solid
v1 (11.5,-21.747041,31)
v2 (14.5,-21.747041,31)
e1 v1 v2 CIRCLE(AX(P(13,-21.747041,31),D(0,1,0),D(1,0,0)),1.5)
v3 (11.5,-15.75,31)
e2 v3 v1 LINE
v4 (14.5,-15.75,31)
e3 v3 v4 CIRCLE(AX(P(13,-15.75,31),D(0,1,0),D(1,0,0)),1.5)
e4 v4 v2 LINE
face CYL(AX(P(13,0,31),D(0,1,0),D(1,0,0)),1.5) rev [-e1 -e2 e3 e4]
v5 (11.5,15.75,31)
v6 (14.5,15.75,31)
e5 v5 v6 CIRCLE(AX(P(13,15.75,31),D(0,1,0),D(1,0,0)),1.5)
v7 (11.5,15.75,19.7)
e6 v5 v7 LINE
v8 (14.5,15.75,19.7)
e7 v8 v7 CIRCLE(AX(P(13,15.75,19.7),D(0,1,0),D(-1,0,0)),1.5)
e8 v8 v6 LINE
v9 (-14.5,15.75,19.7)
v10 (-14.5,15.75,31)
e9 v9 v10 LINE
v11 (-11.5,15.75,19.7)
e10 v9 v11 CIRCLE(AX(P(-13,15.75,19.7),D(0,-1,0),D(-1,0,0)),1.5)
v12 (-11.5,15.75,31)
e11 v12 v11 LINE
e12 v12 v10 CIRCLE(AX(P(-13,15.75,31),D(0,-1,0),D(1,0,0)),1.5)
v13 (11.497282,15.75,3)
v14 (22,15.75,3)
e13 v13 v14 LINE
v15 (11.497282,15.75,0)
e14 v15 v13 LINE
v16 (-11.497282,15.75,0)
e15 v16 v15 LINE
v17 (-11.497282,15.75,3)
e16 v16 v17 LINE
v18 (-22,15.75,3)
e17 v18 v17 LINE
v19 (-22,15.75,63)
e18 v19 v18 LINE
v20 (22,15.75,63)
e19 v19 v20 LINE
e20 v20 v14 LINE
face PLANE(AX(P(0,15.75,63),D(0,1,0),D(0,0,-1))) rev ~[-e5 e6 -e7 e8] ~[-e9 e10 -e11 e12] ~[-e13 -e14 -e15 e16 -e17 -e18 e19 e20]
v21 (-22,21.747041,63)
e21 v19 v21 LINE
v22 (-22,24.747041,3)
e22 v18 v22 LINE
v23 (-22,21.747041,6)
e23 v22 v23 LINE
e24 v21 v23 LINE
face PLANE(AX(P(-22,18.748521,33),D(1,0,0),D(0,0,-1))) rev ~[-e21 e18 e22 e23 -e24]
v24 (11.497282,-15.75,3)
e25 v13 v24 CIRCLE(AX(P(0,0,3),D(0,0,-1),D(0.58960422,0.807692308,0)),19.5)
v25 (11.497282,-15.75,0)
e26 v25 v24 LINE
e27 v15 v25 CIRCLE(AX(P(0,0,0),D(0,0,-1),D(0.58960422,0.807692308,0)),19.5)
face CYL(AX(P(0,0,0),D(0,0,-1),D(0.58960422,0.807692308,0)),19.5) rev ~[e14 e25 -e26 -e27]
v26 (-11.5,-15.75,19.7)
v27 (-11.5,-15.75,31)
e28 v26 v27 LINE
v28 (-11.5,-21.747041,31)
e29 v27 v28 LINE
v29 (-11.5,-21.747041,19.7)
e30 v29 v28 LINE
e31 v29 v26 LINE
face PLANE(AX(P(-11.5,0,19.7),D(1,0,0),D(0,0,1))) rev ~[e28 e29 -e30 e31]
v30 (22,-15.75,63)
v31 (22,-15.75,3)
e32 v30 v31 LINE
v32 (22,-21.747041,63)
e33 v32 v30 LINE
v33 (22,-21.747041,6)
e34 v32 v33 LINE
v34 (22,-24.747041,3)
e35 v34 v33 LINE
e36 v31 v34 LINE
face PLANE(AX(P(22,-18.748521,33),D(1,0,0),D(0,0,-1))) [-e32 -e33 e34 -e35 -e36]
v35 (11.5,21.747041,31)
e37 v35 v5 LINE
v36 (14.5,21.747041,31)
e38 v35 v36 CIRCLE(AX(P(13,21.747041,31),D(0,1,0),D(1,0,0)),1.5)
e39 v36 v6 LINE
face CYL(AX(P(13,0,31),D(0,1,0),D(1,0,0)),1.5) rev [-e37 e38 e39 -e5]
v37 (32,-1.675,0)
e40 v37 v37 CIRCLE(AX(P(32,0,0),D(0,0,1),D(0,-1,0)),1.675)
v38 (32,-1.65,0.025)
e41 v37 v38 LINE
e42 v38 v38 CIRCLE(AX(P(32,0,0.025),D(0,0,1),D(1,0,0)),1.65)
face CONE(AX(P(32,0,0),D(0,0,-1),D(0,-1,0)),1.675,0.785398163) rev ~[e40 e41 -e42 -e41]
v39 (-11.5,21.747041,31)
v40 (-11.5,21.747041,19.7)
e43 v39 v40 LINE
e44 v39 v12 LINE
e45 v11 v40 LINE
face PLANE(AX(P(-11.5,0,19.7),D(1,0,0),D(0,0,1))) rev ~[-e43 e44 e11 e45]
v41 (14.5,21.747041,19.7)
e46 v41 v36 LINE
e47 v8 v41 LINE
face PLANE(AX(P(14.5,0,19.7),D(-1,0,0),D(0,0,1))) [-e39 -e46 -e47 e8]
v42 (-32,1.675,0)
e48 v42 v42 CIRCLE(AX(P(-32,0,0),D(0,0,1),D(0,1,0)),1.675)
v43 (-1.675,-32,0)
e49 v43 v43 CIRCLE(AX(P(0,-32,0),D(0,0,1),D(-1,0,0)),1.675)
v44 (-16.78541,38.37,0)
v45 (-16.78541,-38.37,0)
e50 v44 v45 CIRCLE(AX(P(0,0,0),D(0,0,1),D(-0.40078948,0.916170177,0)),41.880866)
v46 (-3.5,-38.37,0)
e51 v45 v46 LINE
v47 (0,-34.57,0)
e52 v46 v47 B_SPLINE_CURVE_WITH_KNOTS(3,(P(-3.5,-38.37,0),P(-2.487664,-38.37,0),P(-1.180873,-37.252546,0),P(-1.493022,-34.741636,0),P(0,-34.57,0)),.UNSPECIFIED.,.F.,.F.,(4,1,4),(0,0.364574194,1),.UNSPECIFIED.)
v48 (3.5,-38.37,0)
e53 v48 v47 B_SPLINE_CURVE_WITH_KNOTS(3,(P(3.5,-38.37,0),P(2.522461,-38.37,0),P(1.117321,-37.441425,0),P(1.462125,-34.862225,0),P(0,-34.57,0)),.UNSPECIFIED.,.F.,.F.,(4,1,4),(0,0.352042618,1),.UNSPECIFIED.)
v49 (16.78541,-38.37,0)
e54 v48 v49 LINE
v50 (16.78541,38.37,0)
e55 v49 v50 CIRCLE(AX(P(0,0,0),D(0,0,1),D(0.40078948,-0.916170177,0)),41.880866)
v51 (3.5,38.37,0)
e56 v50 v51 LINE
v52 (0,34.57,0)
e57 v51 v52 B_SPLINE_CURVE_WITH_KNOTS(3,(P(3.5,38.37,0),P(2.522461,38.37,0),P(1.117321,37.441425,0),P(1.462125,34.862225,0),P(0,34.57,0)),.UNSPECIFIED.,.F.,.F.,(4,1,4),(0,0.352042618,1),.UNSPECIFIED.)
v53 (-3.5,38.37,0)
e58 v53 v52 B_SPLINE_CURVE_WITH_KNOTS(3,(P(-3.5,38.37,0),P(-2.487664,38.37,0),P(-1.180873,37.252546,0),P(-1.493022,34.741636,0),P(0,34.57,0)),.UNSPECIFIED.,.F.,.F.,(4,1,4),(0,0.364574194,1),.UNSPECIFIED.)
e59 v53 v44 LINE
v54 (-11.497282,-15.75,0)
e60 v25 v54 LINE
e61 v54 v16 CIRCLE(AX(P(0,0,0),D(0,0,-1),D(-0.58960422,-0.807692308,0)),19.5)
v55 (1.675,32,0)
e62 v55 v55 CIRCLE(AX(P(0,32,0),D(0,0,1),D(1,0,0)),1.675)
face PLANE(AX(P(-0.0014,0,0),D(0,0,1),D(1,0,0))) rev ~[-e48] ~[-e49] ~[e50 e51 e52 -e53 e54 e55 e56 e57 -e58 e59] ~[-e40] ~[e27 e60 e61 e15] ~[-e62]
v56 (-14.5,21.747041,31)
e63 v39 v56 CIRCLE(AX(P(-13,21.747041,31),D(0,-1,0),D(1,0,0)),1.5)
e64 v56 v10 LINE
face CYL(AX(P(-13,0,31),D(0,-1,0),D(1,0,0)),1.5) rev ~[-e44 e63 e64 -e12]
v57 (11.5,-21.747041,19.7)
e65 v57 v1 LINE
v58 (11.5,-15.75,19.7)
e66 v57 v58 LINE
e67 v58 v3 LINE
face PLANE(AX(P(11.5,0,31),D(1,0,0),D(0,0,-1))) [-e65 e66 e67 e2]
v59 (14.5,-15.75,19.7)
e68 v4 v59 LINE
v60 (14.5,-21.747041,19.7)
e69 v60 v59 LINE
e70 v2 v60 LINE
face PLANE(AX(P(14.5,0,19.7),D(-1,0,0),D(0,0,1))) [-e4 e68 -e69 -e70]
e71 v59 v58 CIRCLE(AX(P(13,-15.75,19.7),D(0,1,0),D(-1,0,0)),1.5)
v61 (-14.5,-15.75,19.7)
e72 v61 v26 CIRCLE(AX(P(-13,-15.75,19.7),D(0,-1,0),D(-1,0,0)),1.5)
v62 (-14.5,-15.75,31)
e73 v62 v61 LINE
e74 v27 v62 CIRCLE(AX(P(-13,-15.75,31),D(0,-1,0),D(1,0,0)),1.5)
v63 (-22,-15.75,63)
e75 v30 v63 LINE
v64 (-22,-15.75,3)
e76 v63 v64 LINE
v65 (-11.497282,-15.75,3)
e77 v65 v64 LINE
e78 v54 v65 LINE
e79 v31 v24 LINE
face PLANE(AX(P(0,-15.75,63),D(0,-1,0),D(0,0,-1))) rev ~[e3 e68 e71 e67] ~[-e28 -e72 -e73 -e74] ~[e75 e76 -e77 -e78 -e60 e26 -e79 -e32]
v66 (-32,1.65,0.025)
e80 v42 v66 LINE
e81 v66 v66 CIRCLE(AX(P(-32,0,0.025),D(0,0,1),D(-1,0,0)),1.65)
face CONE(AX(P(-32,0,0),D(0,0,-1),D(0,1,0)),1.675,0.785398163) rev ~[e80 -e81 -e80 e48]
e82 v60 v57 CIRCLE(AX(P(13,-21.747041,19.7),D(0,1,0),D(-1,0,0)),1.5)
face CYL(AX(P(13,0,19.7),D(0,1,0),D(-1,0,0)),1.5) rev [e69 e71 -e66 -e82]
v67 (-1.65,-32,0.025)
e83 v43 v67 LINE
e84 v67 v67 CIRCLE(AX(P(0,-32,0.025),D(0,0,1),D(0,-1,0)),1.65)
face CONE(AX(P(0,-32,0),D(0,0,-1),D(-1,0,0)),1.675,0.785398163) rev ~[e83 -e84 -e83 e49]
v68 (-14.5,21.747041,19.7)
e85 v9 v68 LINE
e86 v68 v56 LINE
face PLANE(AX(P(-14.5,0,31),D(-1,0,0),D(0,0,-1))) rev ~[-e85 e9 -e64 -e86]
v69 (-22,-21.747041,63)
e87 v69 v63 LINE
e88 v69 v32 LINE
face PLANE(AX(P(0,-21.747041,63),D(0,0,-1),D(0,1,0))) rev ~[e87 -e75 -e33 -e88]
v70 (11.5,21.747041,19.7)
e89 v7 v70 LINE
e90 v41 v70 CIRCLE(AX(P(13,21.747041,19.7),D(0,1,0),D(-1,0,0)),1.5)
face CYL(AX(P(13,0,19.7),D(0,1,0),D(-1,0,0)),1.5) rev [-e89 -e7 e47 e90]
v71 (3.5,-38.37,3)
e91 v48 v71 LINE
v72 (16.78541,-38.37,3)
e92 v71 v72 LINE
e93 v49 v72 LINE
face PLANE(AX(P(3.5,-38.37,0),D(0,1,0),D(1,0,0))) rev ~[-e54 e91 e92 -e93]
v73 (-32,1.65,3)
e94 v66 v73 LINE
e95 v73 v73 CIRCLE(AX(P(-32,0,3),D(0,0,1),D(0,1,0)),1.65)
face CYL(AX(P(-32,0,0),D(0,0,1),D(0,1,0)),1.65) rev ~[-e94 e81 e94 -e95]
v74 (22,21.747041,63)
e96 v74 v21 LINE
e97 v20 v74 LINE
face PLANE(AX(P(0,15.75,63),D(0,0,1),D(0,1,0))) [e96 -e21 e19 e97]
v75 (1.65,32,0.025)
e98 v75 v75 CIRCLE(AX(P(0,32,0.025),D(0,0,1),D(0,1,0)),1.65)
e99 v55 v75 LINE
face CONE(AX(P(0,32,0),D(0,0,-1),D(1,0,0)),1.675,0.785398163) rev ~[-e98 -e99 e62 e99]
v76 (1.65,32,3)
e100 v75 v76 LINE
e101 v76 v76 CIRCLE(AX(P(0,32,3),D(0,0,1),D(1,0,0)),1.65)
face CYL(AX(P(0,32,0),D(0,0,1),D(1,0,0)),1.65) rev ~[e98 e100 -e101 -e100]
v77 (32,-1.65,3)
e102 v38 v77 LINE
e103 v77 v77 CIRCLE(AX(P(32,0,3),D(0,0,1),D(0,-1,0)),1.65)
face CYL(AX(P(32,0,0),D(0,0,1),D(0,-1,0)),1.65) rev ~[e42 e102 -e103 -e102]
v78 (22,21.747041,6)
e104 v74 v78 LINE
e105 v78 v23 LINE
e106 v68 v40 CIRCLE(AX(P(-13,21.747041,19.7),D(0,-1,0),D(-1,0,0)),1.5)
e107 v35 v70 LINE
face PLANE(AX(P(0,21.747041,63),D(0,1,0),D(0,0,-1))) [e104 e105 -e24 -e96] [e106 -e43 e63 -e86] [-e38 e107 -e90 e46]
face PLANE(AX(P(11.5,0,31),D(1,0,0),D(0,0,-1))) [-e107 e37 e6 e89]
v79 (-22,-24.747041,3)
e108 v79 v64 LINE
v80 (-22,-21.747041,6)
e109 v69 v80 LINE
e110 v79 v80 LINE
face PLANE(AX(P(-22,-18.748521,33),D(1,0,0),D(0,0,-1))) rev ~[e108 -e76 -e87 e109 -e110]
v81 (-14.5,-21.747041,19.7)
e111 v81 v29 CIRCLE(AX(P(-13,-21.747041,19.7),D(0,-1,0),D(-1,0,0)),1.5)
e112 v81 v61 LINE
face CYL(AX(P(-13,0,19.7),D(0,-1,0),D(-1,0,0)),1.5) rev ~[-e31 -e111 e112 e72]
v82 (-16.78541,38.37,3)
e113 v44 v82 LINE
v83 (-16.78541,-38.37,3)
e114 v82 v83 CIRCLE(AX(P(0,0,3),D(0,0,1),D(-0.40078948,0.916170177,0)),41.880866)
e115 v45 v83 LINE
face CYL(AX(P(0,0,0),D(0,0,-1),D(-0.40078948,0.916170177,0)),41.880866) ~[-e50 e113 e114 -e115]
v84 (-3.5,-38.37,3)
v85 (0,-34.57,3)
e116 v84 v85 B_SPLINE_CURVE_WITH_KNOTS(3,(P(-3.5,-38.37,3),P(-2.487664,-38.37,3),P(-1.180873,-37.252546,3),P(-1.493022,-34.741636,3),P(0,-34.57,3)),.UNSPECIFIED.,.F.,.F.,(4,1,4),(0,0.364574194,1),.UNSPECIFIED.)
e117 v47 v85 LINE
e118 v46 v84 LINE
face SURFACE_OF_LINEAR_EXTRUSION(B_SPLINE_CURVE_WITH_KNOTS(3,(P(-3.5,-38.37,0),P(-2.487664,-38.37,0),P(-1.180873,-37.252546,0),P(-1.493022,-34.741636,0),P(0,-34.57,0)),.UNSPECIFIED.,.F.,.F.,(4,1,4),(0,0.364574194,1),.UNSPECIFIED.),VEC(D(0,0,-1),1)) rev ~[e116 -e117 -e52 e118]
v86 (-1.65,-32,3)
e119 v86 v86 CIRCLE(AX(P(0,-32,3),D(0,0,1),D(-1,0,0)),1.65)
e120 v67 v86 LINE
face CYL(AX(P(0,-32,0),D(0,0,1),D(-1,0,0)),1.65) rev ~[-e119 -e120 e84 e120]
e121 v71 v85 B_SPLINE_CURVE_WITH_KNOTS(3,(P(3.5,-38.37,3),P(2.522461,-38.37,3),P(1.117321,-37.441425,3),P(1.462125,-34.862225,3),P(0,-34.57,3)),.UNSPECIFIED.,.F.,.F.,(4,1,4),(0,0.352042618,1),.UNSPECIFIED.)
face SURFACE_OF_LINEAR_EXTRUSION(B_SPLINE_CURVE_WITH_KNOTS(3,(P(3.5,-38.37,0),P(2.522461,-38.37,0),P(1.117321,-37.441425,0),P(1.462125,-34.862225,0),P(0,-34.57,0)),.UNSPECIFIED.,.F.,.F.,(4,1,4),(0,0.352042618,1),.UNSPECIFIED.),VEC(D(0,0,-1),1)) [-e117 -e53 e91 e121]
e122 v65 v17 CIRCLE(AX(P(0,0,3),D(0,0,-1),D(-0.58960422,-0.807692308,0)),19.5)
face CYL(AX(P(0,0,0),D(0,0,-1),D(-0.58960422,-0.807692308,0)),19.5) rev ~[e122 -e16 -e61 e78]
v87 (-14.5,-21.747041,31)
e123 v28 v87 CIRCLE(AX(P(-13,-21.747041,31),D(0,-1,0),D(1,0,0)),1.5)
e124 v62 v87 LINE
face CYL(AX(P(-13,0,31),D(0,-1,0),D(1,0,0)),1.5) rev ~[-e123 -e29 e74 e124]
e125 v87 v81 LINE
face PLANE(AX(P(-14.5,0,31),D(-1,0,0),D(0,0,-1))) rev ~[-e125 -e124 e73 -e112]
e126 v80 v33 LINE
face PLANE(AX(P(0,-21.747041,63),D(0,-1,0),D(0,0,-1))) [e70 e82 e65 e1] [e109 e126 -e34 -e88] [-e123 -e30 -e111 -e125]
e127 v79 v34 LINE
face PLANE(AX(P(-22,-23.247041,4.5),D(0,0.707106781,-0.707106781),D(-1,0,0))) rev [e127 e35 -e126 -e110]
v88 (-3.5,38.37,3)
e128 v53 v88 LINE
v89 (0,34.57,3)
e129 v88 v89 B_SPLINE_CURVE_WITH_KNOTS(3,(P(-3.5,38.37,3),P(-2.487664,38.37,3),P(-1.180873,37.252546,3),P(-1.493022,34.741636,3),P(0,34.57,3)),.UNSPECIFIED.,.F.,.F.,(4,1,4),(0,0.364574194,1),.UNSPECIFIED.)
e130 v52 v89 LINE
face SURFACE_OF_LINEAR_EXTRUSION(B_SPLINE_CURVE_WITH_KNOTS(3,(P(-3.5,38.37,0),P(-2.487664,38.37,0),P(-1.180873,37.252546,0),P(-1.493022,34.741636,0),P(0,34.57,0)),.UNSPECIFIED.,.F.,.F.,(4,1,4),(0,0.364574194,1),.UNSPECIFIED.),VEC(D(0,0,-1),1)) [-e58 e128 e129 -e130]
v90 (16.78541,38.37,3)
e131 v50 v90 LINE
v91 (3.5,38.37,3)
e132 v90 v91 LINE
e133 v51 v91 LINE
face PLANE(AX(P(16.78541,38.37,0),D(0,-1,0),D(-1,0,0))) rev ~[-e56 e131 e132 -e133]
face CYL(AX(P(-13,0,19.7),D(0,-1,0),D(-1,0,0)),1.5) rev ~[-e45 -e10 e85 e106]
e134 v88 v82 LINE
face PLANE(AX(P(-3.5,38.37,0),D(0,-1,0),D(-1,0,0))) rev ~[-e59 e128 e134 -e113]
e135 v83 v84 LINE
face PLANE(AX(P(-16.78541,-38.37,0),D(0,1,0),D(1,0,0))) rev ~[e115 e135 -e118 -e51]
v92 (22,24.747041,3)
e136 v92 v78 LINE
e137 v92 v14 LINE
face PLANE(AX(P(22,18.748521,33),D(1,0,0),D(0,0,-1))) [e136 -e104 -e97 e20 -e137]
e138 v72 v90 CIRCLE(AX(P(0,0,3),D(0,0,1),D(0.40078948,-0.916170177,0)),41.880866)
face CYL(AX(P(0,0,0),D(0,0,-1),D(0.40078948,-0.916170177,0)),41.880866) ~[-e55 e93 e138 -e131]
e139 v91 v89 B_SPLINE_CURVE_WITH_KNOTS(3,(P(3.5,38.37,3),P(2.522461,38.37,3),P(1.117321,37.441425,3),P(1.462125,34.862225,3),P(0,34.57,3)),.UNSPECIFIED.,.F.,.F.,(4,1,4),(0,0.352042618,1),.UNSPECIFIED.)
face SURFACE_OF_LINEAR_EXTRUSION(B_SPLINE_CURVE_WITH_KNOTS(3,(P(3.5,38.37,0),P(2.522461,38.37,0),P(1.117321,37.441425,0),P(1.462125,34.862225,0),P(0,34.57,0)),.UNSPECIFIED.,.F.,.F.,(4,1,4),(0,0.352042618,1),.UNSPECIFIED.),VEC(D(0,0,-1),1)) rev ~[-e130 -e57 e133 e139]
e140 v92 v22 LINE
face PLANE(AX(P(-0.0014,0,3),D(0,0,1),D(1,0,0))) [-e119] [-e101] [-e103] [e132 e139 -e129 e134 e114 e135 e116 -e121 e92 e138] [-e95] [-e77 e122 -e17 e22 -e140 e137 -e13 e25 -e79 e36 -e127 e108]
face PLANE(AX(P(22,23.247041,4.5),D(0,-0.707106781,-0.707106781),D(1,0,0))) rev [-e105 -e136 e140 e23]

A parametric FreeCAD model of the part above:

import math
import FreeCAD as App
import Part
import Sketcher


def edges_at(feature, points):
    """Names of the edges that pass closest to the given points."""
    edges = feature.Shape.Edges
    near = lambda p: min(range(len(edges)), key=lambda i: edges[i].distToShape(Part.Vertex(*p))[0])
    return sorted({f"Edge{near(p) + 1}" for p in points})


def add_polygon(sketch, points):
    """Adds a closed chain of lines whose ends are joined by coincident constraints."""
    first, n = sketch.GeometryCount, len(points)
    for a, b in zip(points, points[1:] + points[:1]):
        sketch.addGeometry(Part.LineSegment(App.Vector(*a, 0), App.Vector(*b, 0)), False)
    for i in range(n):
        sketch.addConstraint(Sketcher.Constraint("Coincident", first + i, 2, first + (i + 1) % n, 1))

doc = App.newDocument("Part")
body = doc.addObject("PartDesign::Body", "Body")

sketch1 = doc.addObject("Sketcher::SketchObject", "Sketch")
body.addObject(sketch1)
sketch1.AttachmentSupport = (doc.XY_Plane, [""])
sketch1.MapMode = "FlatFace"
sketch1.addGeometry([
    Part.LineSegment(App.Vector(-16.78541, -38.37, 0), App.Vector(-3.5, -38.37, 0)),
    Part.BSplineCurve([App.Vector(-3.5, -38.37, 0), App.Vector(-2.487664, -38.37, 0), App.Vector(-1.180873, -37.252546, 0), App.Vector(-1.493022, -34.741636, 0), App.Vector(0, -34.57, 0)], [4, 1, 4], [0, 0.364574194, 1], False, 3, [1, 1, 1, 1, 1], False),
    Part.BSplineCurve([App.Vector(3.5, -38.37, 0), App.Vector(2.522461, -38.37, 0), App.Vector(1.117321, -37.441425, 0), App.Vector(1.462125, -34.862225, 0), App.Vector(0, -34.57, 0)], [4, 1, 4], [0, 0.352042618, 1], False, 3, [1, 1, 1, 1, 1], False),
    Part.LineSegment(App.Vector(3.5, -38.37, 0), App.Vector(16.78541, -38.37, 0)),
    Part.ArcOfCircle(Part.Circle(App.Vector(0, 0, 0), App.Vector(0, 0, 1), 41.880866), math.radians(-66.372458), math.radians(66.372458)),
    Part.LineSegment(App.Vector(16.78541, 38.37, 0), App.Vector(3.5, 38.37, 0)),
    Part.BSplineCurve([App.Vector(3.5, 38.37, 0), App.Vector(2.522461, 38.37, 0), App.Vector(1.117321, 37.441425, 0), App.Vector(1.462125, 34.862225, 0), App.Vector(0, 34.57, 0)], [4, 1, 4], [0, 0.352042618, 1], False, 3, [1, 1, 1, 1, 1], False),
    Part.BSplineCurve([App.Vector(-3.5, 38.37, 0), App.Vector(-2.487664, 38.37, 0), App.Vector(-1.180873, 37.252546, 0), App.Vector(-1.493022, 34.741636, 0), App.Vector(0, 34.57, 0)], [4, 1, 4], [0, 0.364574194, 1], False, 3, [1, 1, 1, 1, 1], False),
    Part.LineSegment(App.Vector(-3.5, 38.37, 0), App.Vector(-16.78541, 38.37, 0)),
    Part.ArcOfCircle(Part.Circle(App.Vector(0, 0, 0), App.Vector(0, 0, 1), 41.880866), math.radians(113.627542), math.radians(246.372458)),
    Part.ArcOfCircle(Part.Circle(App.Vector(0, 0, 0), App.Vector(0, 0, 1), 19.5), math.radians(-53.871073), math.radians(53.871073)),
    Part.LineSegment(App.Vector(11.497282, -15.75, 0), App.Vector(-11.497282, -15.75, 0)),
    Part.ArcOfCircle(Part.Circle(App.Vector(0, 0, 0), App.Vector(0, 0, 1), 19.5), math.radians(126.128927), math.radians(233.871073)),
    Part.LineSegment(App.Vector(-11.497282, 15.75, 0), App.Vector(11.497282, 15.75, 0)),
], False)
sketch1.addConstraint([
    Sketcher.Constraint("Block", 1),
    Sketcher.Constraint("Block", 2),
    Sketcher.Constraint("Block", 6),
    Sketcher.Constraint("Block", 7),
    Sketcher.Constraint("Coincident", 0, 2, 1, 1),
    Sketcher.Constraint("Coincident", 2, 1, 3, 1),
    Sketcher.Constraint("Coincident", 3, 2, 4, 1),
    Sketcher.Constraint("Coincident", 4, 2, 5, 1),
    Sketcher.Constraint("Coincident", 5, 2, 6, 1),
    Sketcher.Constraint("Coincident", 7, 1, 8, 1),
    Sketcher.Constraint("Coincident", 8, 2, 9, 1),
    Sketcher.Constraint("Coincident", 9, 2, 0, 1),
    Sketcher.Constraint("Coincident", 10, 1, 11, 1),
    Sketcher.Constraint("Coincident", 11, 2, 12, 2),
    Sketcher.Constraint("Coincident", 12, 1, 13, 1),
    Sketcher.Constraint("Coincident", 13, 2, 10, 2),
    Sketcher.Constraint("Horizontal", 0),
    Sketcher.Constraint("Horizontal", 3),
    Sketcher.Constraint("Horizontal", 5),
    Sketcher.Constraint("Horizontal", 8),
    Sketcher.Constraint("Horizontal", 11),
    Sketcher.Constraint("Horizontal", 13),
    Sketcher.Constraint("Coincident", 4, 3, -1, 1),
    Sketcher.Constraint("Coincident", 9, 3, -1, 1),
    Sketcher.Constraint("Coincident", 10, 3, -1, 1),
    Sketcher.Constraint("Coincident", 12, 3, -1, 1),
    Sketcher.Constraint("Equal", 4, 9),
    Sketcher.Constraint("Equal", 10, 12),
    Sketcher.Constraint("Vertical", 11, 2, 12, 1),
    Sketcher.Constraint("Radius", 10, 19.5),
    Sketcher.Constraint("DistanceY", 10, 1, -1, 1, 15.75),
    Sketcher.Constraint("Radius", 4, 41.880866),
])
pad1 = doc.addObject("PartDesign::Pad", "Pad")
body.addObject(pad1)
pad1.Profile = sketch1
pad1.Length = 3

sketch2 = doc.addObject("Sketcher::SketchObject", "Sketch001")
body.addObject(sketch2)
sketch2.AttachmentSupport = (doc.XY_Plane, [""])
sketch2.MapMode = "FlatFace"
sketch2.addGeometry(Part.Circle(App.Vector(0, 32, 0), App.Vector(0, 0, 1), 1.6), False)
sketch2.addConstraint([
    Sketcher.Constraint("PointOnObject", 0, 3, -2),
    Sketcher.Constraint("Diameter", 0, 3.3),
    Sketcher.Constraint("DistanceY", -1, 1, 0, 3, 32.0),
])
doc.recompute()
hole = doc.addObject("PartDesign::Hole", "Hole")
body.addObject(hole)
hole.Profile = sketch2
hole.ThreadType = "None"
hole.Diameter = 3.3
hole.DepthType = "ThroughAll"
hole.HoleCutType = "Countersink"
hole.HoleCutDiameter = 3.35
hole.HoleCutCountersinkAngle = 90
hole.Reversed = True
doc.recompute()

polarpattern = doc.addObject("PartDesign::PolarPattern", "PolarPattern")
body.addObject(polarpattern)
polarpattern.Originals = [hole]
polarpattern.Axis = (doc.Z_Axis, [""])
polarpattern.Angle = 360
polarpattern.Occurrences = 4
body.Tip = polarpattern

sketch3 = doc.addObject("Sketcher::SketchObject", "Sketch002")
body.addObject(sketch3)
sketch3.AttachmentSupport = (doc.YZ_Plane, [""])
sketch3.MapMode = "FlatFace"
add_polygon(sketch3, [(22, 63), (16, 63), (16, 3), (22, 3)])
add_polygon(sketch3, [(-16, 63), (-22, 63), (-22, 3), (-16, 3)])
sketch3.addConstraint([
    Sketcher.Constraint("Horizontal", 0),
    Sketcher.Constraint("Vertical", 1),
    Sketcher.Constraint("Horizontal", 2),
    Sketcher.Constraint("Vertical", 3),
    Sketcher.Constraint("Horizontal", 4),
    Sketcher.Constraint("Vertical", 5),
    Sketcher.Constraint("Horizontal", 6),
    Sketcher.Constraint("Vertical", 7),
    Sketcher.Constraint("Symmetric", 3, 2, 4, 2, -2),
    Sketcher.Constraint("Symmetric", 1, 2, 6, 2, -2),
    Sketcher.Constraint("DistanceY", 1, 2, 1, 1, 60.0),
    Sketcher.Constraint("DistanceY", -1, 1, 0, 2, 63.0),
    Sketcher.Constraint("DistanceX", 6, 2, 1, 2, 31.5),
    Sketcher.Constraint("DistanceX", 0, 2, 0, 1, 5.997041),
])
pad2 = doc.addObject("PartDesign::Pad", "Pad001")
body.addObject(pad2)
pad2.Profile = sketch3
pad2.Length = 44
pad2.Midplane = True

sketch4 = doc.addObject("Sketcher::SketchObject", "Sketch003")
body.addObject(sketch4)
sketch4.AttachmentSupport = (doc.XZ_Plane, [""])
sketch4.MapMode = "FlatFace"
sketch4.addGeometry([
    Part.LineSegment(App.Vector(14.5, 19.7, 0), App.Vector(14.5, 31, 0)),
    Part.ArcOfCircle(Part.Circle(App.Vector(13, 31, 0), App.Vector(0, 0, 1), 1.5), math.radians(0), math.radians(180)),
    Part.LineSegment(App.Vector(11.5, 31, 0), App.Vector(11.5, 19.7, 0)),
    Part.ArcOfCircle(Part.Circle(App.Vector(13, 19.7, 0), App.Vector(0, 0, 1), 1.5), math.radians(180), math.radians(360)),
    Part.LineSegment(App.Vector(-11.5, 19.7, 0), App.Vector(-11.5, 31, 0)),
    Part.ArcOfCircle(Part.Circle(App.Vector(-13, 31, 0), App.Vector(0, 0, 1), 1.5), math.radians(0), math.radians(180)),
    Part.LineSegment(App.Vector(-14.5, 31, 0), App.Vector(-14.5, 19.7, 0)),
    Part.ArcOfCircle(Part.Circle(App.Vector(-13, 19.7, 0), App.Vector(0, 0, 1), 1.5), math.radians(180), math.radians(360)),
], False)
sketch4.addConstraint([
    Sketcher.Constraint("Tangent", 0, 2, 1, 1),
    Sketcher.Constraint("Tangent", 1, 2, 2, 1),
    Sketcher.Constraint("Tangent", 2, 2, 3, 1),
    Sketcher.Constraint("Tangent", 3, 2, 0, 1),
    Sketcher.Constraint("Tangent", 4, 2, 5, 1),
    Sketcher.Constraint("Tangent", 5, 2, 6, 1),
    Sketcher.Constraint("Tangent", 6, 2, 7, 1),
    Sketcher.Constraint("Tangent", 7, 2, 4, 1),
    Sketcher.Constraint("Vertical", 0),
    Sketcher.Constraint("Vertical", 2),
    Sketcher.Constraint("Vertical", 4),
    Sketcher.Constraint("Vertical", 6),
    Sketcher.Constraint("Equal", 3, 5),
    Sketcher.Constraint("Symmetric", 1, 3, 5, 3, -2),
    Sketcher.Constraint("Horizontal", 3, 3, 7, 3),
    Sketcher.Constraint("Radius", 1, 1.5),
    Sketcher.Constraint("DistanceY", 0, 1, 0, 2, 11.3),
    Sketcher.Constraint("DistanceX", -1, 1, 1, 3, 13.0),
    Sketcher.Constraint("DistanceY", -1, 1, 1, 3, 31.0),
])
pocket1 = doc.addObject("PartDesign::Pocket", "Pocket")
body.addObject(pocket1)
pocket1.Profile = sketch4
pocket1.Length = 70
pocket1.Midplane = True
doc.recompute()

chamfer = doc.addObject("PartDesign::Chamfer", "Chamfer")
body.addObject(chamfer)
chamfer.Base = (pocket1, edges_at(pocket1, [(0, 21.747, 3)]))
chamfer.Size = 3
doc.recompute()

chamfer2 = doc.addObject("PartDesign::Chamfer", "Chamfer001")
body.addObject(chamfer2)
chamfer2.Base = (chamfer, edges_at(chamfer, [(0, -21.747, 3)]))
chamfer2.Size = 3

doc.recompute()
